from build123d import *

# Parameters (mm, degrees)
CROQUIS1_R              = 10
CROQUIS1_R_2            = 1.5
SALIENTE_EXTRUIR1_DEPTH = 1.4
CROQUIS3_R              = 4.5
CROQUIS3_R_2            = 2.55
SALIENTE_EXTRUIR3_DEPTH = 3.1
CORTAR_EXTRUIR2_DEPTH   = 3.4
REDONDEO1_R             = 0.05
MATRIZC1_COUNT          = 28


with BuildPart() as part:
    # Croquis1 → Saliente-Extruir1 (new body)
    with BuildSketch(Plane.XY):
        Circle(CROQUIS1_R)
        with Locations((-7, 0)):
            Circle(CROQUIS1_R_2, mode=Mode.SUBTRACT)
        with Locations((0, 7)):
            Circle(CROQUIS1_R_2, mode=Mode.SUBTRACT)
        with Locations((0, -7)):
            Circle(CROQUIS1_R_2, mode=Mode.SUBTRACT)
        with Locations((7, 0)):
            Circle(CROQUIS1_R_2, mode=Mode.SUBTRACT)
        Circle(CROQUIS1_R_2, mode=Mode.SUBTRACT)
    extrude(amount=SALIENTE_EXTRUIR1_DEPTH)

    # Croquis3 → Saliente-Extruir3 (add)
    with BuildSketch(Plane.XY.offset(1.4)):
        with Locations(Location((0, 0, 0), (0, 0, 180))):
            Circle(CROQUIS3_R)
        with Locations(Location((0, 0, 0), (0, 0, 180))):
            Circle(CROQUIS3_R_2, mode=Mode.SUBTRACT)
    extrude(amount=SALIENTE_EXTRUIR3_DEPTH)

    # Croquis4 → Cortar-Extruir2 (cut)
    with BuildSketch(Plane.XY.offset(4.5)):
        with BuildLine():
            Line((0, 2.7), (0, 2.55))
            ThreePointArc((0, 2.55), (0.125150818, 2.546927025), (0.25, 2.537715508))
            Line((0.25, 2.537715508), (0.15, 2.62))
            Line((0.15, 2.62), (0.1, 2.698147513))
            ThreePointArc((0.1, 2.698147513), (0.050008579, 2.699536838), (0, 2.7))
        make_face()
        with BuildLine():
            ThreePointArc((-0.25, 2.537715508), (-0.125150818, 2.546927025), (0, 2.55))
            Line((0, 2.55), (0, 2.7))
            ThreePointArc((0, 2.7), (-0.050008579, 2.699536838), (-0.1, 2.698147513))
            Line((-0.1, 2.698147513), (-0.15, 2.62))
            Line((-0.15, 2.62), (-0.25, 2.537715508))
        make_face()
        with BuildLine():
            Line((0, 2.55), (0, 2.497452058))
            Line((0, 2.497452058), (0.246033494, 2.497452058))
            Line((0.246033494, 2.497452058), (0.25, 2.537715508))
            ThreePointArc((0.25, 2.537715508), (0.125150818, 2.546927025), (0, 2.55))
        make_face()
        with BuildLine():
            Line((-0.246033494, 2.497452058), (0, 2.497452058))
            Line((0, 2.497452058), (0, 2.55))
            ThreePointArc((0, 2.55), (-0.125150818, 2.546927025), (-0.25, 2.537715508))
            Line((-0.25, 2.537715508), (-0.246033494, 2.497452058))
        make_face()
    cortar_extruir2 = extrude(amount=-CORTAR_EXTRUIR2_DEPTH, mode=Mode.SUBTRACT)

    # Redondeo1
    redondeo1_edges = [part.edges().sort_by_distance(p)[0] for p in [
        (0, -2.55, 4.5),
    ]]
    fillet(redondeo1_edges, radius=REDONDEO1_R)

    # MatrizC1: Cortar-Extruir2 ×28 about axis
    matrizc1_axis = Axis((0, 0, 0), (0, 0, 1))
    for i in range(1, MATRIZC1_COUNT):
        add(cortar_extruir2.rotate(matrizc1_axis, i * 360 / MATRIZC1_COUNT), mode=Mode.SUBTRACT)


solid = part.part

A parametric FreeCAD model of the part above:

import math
import FreeCAD as App
import Part
import Sketcher
from FreeCAD import Vector


def edges_at(feature, points):
    """Names of the edges that pass closest to the given points."""
    edges = feature.Shape.Edges
    near = lambda p: min(range(len(edges)), key=lambda i: edges[i].distToShape(Part.Vertex(*p))[0])
    return sorted({f"Edge{near(p) + 1}" for p in points})

doc = App.newDocument("Part")
params = doc.addObject("Spreadsheet::Sheet", "Params")
for row, (alias, value) in enumerate([
    ("sketch1_diameter", "20 mm"),
    ("sketch1_diameter2", "3 mm"),
    ("pad1_length", "1.4 mm"),
    ("sketch2_diameter", "9 mm"),
    ("sketch2_diameter2", "5.1 mm"),
    ("pad2_length", "3.1 mm"),
    ("pocket1_length", "3.4 mm"),
    ("fillet_radius", "0.05 mm"),
], start=1):
    params.set(f"A{row}", alias)
    params.set(f"B{row}", "=" + value)
    params.setAlias(f"B{row}", alias)

body = doc.addObject("PartDesign::Body", "Body")

# Sketch on XY plane
sketch1 = body.newObject("Sketcher::SketchObject", "Sketch")
sketch1.AttachmentSupport = (doc.getObject("XY_Plane"), [""])
sketch1.MapMode = "FlatFace"
sketch1.addGeometry([
    Part.Circle(Vector(0, 0, 0), Vector(0, 0, 1), 10),  # 0
    Part.Circle(Vector(0, -7, 0), Vector(0, 0, 1), 1.5),  # 1
    Part.Circle(Vector(-7, 0, 0), Vector(0, 0, 1), 1.5),  # 2
    Part.Circle(Vector(0, 0, 0), Vector(0, 0, 1), 1.5),  # 3
    Part.Circle(Vector(7, 0, 0), Vector(0, 0, 1), 1.5),  # 4
    Part.Circle(Vector(0, 7, 0), Vector(0, 0, 1), 1.5),  # 5
], False)
sketch1.addConstraint([
    Sketcher.Constraint("Coincident", 0, 3, -1, 1),
    Sketcher.Constraint("Coincident", 3, 3, -1, 1),
    Sketcher.Constraint("Equal", 1, 2),
    Sketcher.Constraint("Equal", 2, 3),
    Sketcher.Constraint("Equal", 3, 4),
    Sketcher.Constraint("Equal", 4, 5),
    Sketcher.Constraint("Symmetric", 2, 3, 4, 3, -1, 1),
    Sketcher.Constraint("Symmetric", 1, 3, 5, 3, -1, 1),
    Sketcher.Constraint("PointOnObject", 1, 3, -2),
    Sketcher.Constraint("PointOnObject", 2, 3, -1),
    Sketcher.Constraint("Diameter", 0, 20.0),
    Sketcher.Constraint("Diameter", 1, 3.0),
    Sketcher.Constraint("DistanceY", 1, 3, -1, 1, 7.0),
    Sketcher.Constraint("DistanceX", 2, 3, -1, 1, 7.0),
])
sketch1.setExpression("Constraints[10]", "Params.sketch1_diameter")
sketch1.setExpression("Constraints[11]", "Params.sketch1_diameter2")
pad1 = body.newObject("PartDesign::Pad", "Pad")
pad1.Profile = sketch1
pad1.setExpression("Length", "Params.pad1_length")

# Sketch on XY plane
sketch2 = body.newObject("Sketcher::SketchObject", "Sketch001")
sketch2.AttachmentSupport = (doc.getObject("XY_Plane"), [""])
sketch2.MapMode = "FlatFace"
sketch2.AttachmentOffset = App.Placement(Vector(0, 0, 1.4), App.Rotation())
sketch2.addGeometry([
    Part.Circle(Vector(0, 0, 0), Vector(0, 0, 1), 4.5),
    Part.Circle(Vector(0, 0, 0), Vector(0, 0, 1), 2.55),
], False)
sketch2.addConstraint([
    Sketcher.Constraint("Coincident", 0, 3, -1, 1),
    Sketcher.Constraint("Coincident", 1, 3, -1, 1),
    Sketcher.Constraint("Diameter", 0, 9.0),
    Sketcher.Constraint("Diameter", 1, 5.1),
])
sketch2.setExpression("Constraints[2]", "Params.sketch2_diameter")
sketch2.setExpression("Constraints[3]", "Params.sketch2_diameter2")
pad2 = body.newObject("PartDesign::Pad", "Pad001")
pad2.Profile = sketch2
pad2.setExpression("Length", "Params.pad2_length")

# Sketch on XY plane
sketch3 = body.newObject("Sketcher::SketchObject", "Sketch002")
sketch3.AttachmentSupport = (doc.getObject("XY_Plane"), [""])
sketch3.MapMode = "FlatFace"
sketch3.AttachmentOffset = App.Placement(Vector(0, 0, 4.5), App.Rotation())
sketch3.addGeometry([
    Part.LineSegment(Vector(0.25, 2.537716, 0), Vector(0.15, 2.62, 0)),  # 0
    Part.LineSegment(Vector(0.15, 2.62, 0), Vector(0.1, 2.698148, 0)),  # 1
    Part.ArcOfCircle(Part.Circle(Vector(0, -0.000004, 0), Vector(0, 0, 1), 2.700004), math.radians(87.87745), math.radians(89.999999)),  # 2
    Part.ArcOfCircle(Part.Circle(Vector(0, -0.000004, 0), Vector(0, 0, 1), 2.700004), math.radians(90.000001), math.radians(92.12255)),  # 3
    Part.LineSegment(Vector(-0.1, 2.698148, 0), Vector(-0.15, 2.62, 0)),  # 4
    Part.LineSegment(Vector(-0.15, 2.62, 0), Vector(-0.25, 2.537716, 0)),  # 5
    Part.LineSegment(Vector(-0.25, 2.537716, 0), Vector(-0.246033, 2.497452, 0)),  # 6
    Part.LineSegment(Vector(-0.246033, 2.497452, 0), Vector(0.246033, 2.497452, 0)),  # 7
    Part.LineSegment(Vector(0.246033, 2.497452, 0), Vector(0.25, 2.537716, 0)),  # 8
], False)
sketch3.addConstraint([
    Sketcher.Constraint("Coincident", 0, 2, 1, 1),
    Sketcher.Constraint("Coincident", 1, 2, 2, 1),
    Sketcher.Constraint("Tangent", 2, 2, 3, 1),
    Sketcher.Constraint("Coincident", 3, 2, 4, 1),
    Sketcher.Constraint("Coincident", 4, 2, 5, 1),
    Sketcher.Constraint("Coincident", 5, 2, 6, 1),
    Sketcher.Constraint("Coincident", 6, 2, 7, 1),
    Sketcher.Constraint("Coincident", 7, 2, 8, 1),
    Sketcher.Constraint("Coincident", 8, 2, 0, 1),
    Sketcher.Constraint("Horizontal", 7),
    Sketcher.Constraint("Coincident", 2, 3, -1, 1),
    Sketcher.Constraint("Equal", 2, 3),
    Sketcher.Constraint("Symmetric", 0, 2, 4, 2, -2),
    Sketcher.Constraint("Symmetric", 5, 2, 8, 2, -2),
    Sketcher.Constraint("PointOnObject", 2, 2, -2),
    Sketcher.Constraint("Horizontal", 1, 2, 3, 2),
    Sketcher.Constraint("Equal", 6, 8),
    Sketcher.Constraint("DistanceX", -1, 1, 1, 2, 0.1),
    Sketcher.Constraint("DistanceY", -1, 1, 2, 2, 2.7),
    Sketcher.Constraint("DistanceX", 4, 2, 0, 2, 0.3),
    Sketcher.Constraint("DistanceX", 5, 2, 4, 2, 0.1),
    Sketcher.Constraint("DistanceY", -1, 1, 0, 2, 2.62),
    Sketcher.Constraint("Distance", 0, 0.129502),
    Sketcher.Constraint("Distance", 6, 0.040458),
    Sketcher.Constraint("DistanceX", 7, 1, 7, 2, 0.492067),
])
pocket1 = body.newObject("PartDesign::Pocket", "Pocket")
pocket1.Profile = sketch3
pocket1.setExpression("Length", "Params.pocket1_length")
doc.recompute()

fillet = body.newObject("PartDesign::Fillet", "Fillet")
fillet.Base = (pocket1, edges_at(pocket1, [(0, -2.55, 4.5)]))
fillet.setExpression("Radius", "Params.fillet_radius")
doc.recompute()

polarpattern = body.newObject("PartDesign::PolarPattern", "PolarPattern")
polarpattern.Originals = [pocket1]
polarpattern.Axis = (doc.getObject("Z_Axis"), [""])
polarpattern.Angle = 360
polarpattern.Occurrences = 28
body.Tip = polarpattern

doc.recompute()
